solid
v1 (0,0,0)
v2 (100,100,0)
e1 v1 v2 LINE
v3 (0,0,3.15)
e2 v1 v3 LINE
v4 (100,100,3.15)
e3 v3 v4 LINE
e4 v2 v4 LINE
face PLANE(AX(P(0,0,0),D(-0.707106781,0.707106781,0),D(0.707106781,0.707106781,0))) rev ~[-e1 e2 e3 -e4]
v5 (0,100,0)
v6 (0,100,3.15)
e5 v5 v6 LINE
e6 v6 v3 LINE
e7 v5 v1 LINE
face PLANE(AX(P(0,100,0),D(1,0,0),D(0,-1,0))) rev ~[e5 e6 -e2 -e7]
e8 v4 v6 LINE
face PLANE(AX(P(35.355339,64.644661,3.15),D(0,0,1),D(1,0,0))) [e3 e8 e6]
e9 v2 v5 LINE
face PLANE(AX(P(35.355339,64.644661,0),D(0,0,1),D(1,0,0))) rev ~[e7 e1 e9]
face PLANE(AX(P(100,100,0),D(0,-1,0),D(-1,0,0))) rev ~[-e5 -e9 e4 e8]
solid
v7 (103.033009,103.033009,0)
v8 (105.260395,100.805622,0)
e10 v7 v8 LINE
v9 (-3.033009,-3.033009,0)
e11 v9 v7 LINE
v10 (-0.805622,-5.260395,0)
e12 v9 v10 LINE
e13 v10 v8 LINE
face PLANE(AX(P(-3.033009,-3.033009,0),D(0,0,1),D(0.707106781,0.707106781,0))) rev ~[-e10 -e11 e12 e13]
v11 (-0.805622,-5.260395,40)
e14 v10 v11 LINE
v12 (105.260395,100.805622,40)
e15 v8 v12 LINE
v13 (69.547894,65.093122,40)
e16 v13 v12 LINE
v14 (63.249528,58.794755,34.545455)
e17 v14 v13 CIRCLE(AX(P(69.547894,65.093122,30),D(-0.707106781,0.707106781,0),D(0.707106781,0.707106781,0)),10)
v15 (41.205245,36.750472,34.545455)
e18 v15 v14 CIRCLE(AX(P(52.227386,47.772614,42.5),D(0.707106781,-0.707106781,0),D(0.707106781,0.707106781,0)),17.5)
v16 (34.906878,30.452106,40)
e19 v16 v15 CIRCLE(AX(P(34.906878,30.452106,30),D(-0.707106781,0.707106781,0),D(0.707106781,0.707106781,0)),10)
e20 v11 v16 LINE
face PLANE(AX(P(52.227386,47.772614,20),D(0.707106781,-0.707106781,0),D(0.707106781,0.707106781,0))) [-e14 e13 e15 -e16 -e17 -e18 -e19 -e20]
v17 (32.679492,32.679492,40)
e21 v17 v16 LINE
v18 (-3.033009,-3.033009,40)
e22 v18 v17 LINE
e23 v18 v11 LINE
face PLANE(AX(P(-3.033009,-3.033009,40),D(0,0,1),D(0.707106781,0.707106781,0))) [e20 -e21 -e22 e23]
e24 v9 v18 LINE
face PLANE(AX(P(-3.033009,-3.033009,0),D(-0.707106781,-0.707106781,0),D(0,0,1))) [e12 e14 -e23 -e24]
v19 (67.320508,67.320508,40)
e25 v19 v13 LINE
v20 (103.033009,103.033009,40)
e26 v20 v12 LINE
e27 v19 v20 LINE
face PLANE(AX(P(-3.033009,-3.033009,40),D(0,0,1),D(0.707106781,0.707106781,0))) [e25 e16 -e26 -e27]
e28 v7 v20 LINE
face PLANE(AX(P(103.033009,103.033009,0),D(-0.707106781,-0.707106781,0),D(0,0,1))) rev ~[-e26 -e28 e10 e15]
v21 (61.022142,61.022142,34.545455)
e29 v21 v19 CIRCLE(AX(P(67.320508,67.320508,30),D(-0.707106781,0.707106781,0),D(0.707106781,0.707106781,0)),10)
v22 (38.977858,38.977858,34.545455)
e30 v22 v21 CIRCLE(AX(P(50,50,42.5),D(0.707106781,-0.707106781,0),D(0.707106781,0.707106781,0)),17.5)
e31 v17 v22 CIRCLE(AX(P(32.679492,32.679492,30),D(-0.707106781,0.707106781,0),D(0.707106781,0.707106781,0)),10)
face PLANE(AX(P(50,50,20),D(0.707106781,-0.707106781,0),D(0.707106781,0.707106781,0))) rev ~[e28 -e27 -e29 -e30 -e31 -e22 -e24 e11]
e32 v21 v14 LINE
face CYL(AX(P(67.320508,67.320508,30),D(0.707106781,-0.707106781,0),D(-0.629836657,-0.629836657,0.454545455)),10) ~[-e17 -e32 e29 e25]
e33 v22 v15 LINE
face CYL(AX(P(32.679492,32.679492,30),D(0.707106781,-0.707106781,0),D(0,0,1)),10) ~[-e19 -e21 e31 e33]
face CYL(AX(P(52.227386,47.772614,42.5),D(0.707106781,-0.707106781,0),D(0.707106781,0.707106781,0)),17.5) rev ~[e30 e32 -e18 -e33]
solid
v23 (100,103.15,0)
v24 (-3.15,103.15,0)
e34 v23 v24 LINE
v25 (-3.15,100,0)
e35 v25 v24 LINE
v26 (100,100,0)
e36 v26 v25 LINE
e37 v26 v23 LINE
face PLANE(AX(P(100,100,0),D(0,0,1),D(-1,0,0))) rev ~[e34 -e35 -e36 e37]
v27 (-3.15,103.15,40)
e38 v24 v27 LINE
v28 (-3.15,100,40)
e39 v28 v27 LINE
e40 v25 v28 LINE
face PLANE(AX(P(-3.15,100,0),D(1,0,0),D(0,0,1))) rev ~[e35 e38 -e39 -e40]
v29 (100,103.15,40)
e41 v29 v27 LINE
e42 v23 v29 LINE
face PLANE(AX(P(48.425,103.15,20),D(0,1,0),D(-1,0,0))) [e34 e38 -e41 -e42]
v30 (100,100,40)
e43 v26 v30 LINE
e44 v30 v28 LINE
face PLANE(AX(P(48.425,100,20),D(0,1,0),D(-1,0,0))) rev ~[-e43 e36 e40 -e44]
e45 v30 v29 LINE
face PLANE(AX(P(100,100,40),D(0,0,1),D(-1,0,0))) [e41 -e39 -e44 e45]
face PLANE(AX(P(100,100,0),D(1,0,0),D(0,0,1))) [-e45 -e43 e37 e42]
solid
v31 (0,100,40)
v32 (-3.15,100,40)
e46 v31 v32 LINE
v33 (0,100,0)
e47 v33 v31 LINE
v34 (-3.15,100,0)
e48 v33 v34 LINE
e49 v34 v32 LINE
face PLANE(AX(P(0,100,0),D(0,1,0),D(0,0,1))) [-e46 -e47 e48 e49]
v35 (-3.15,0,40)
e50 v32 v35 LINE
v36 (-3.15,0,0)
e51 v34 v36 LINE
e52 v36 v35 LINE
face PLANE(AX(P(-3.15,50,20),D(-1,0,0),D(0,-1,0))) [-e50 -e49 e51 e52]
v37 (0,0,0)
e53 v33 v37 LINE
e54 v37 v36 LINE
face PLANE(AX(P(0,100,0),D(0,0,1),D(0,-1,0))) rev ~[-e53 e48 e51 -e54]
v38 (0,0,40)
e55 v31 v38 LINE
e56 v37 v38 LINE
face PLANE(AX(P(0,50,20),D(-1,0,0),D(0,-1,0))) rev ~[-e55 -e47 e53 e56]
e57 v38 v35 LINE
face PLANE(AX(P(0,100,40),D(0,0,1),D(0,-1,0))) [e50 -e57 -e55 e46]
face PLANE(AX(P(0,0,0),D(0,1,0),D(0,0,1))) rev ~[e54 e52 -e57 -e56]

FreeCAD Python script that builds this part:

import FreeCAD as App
import Part
import Sketcher

V = App.Vector


def edges_at(feature, points):
    """Names of the edges that pass closest to the given points."""
    edges = feature.Shape.Edges
    near = lambda p: min(range(len(edges)), key=lambda i: edges[i].distToShape(Part.Vertex(*p))[0])
    return sorted({f"Edge{near(p) + 1}" for p in points})

doc = App.newDocument("Part")
body = doc.addObject("PartDesign::Body", "Body")

sketch1 = body.newObject("Sketcher::SketchObject", "Sketch")
sketch1.AttachmentSupport = (doc.getObject("XY_Plane"), [""])
sketch1.MapMode = "FlatFace"
sketch1.addGeometry(Part.LineSegment(V(0, 100, 0), V(0, 0, 0)), False)
sketch1.addGeometry(Part.LineSegment(V(0, 0, 0), V(100, 100, 0)), False)
sketch1.addGeometry(Part.LineSegment(V(100, 100, 0), V(0, 100, 0)), False)
sketch1.addConstraint(Sketcher.Constraint("Coincident", 0, 2, 1, 1))
sketch1.addConstraint(Sketcher.Constraint("Coincident", 1, 2, 2, 1))
sketch1.addConstraint(Sketcher.Constraint("Coincident", 2, 2, 0, 1))
sketch1.addConstraint(Sketcher.Constraint("Vertical", 0))
sketch1.addConstraint(Sketcher.Constraint("Horizontal", 2))
sketch1.addConstraint(Sketcher.Constraint("Coincident", 0, 2, -1, 1))
sketch1.addConstraint(Sketcher.Constraint("Equal", 2, 0))
sketch1.addConstraint(Sketcher.Constraint("DistanceX", 2, 2, 2, 1, 100.0))
pad1 = body.newObject("PartDesign::Pad", "Pad")
pad1.Profile = sketch1
pad1.Length = 3.15
body2 = doc.addObject("PartDesign::Body", "Body001")

sketch2 = body2.newObject("Sketcher::SketchObject", "Sketch001")
sketch2.AttachmentSupport = (doc.getObject("YZ_Plane001"), [""])
sketch2.MapMode = "FlatFace"
sketch2.addGeometry(Part.LineSegment(V(100, 40, 0), V(100, 0, 0)), False)
sketch2.addGeometry(Part.LineSegment(V(100, 0, 0), V(0, 0, 0)), False)
sketch2.addGeometry(Part.LineSegment(V(0, 0, 0), V(0, 40, 0)), False)
sketch2.addGeometry(Part.LineSegment(V(0, 40, 0), V(100, 40, 0)), False)
sketch2.addConstraint(Sketcher.Constraint("Coincident", 0, 2, 1, 1))
sketch2.addConstraint(Sketcher.Constraint("Coincident", 1, 2, 2, 1))
sketch2.addConstraint(Sketcher.Constraint("Coincident", 2, 2, 3, 1))
sketch2.addConstraint(Sketcher.Constraint("Coincident", 3, 2, 0, 1))
sketch2.addConstraint(Sketcher.Constraint("Vertical", 0))
sketch2.addConstraint(Sketcher.Constraint("Horizontal", 1))
sketch2.addConstraint(Sketcher.Constraint("Vertical", 2))
sketch2.addConstraint(Sketcher.Constraint("Horizontal", 3))
sketch2.addConstraint(Sketcher.Constraint("Coincident", 1, 2, -1, 1))
sketch2.addConstraint(Sketcher.Constraint("DistanceX", 1, 2, 1, 1, 100.0))
sketch2.addConstraint(Sketcher.Constraint("DistanceY", 0, 2, 0, 1, 40.0))
pad2 = body2.newObject("PartDesign::Pad", "Pad001")
pad2.Profile = sketch2
pad2.Length = 3.15
pad2.Reversed = True
body3 = doc.addObject("PartDesign::Body", "Body002")

sketch3 = body3.newObject("Sketcher::SketchObject", "Sketch002")
sketch3.AttachmentSupport = (doc.getObject("XZ_Plane002"), [""])
sketch3.MapMode = "FlatFace"
sketch3.AttachmentOffset = App.Placement(V(0, 0, -100), App.Rotation())
sketch3.addGeometry(Part.LineSegment(V(100, 40, 0), V(100, 0, 0)), False)
sketch3.addGeometry(Part.LineSegment(V(100, 0, 0), V(-3, 0, 0)), False)
sketch3.addGeometry(Part.LineSegment(V(-3, 0, 0), V(-3, 40, 0)), False)
sketch3.addGeometry(Part.LineSegment(V(-3, 40, 0), V(100, 40, 0)), False)
sketch3.addConstraint(Sketcher.Constraint("Coincident", 0, 2, 1, 1))
sketch3.addConstraint(Sketcher.Constraint("Coincident", 1, 2, 2, 1))
sketch3.addConstraint(Sketcher.Constraint("Coincident", 2, 2, 3, 1))
sketch3.addConstraint(Sketcher.Constraint("Coincident", 3, 2, 0, 1))
sketch3.addConstraint(Sketcher.Constraint("Vertical", 0))
sketch3.addConstraint(Sketcher.Constraint("Horizontal", 1))
sketch3.addConstraint(Sketcher.Constraint("Vertical", 2))
sketch3.addConstraint(Sketcher.Constraint("Horizontal", 3))
sketch3.addConstraint(Sketcher.Constraint("PointOnObject", 0, 2, -1))
sketch3.addConstraint(Sketcher.Constraint("DistanceY", 0, 2, 0, 1, 40.0))
sketch3.addConstraint(Sketcher.Constraint("DistanceX", -1, 1, 0, 2, 100.0))
sketch3.addConstraint(Sketcher.Constraint("DistanceX", 1, 2, 1, 1, 103.15))
pad3 = body3.newObject("PartDesign::Pad", "Pad002")
pad3.Profile = sketch3
pad3.Length = 3.15
pad3.Reversed = True
body4 = doc.addObject("PartDesign::Body", "Body003")

sketch4 = body4.newObject("Sketcher::SketchObject", "Sketch003")
sketch4.Placement = App.Placement(V(0, 0, 0), App.Rotation(V(0.707106781, 0.707106781, 0), V(0, 0, 0.999999999), V(0.707106781, -0.707106781, 0), "ZXY"))
sketch4.addGeometry(Part.LineSegment(V(-4, 40, 0), V(-4, 0, 0)), False)
sketch4.addGeometry(Part.LineSegment(V(-4, 0, 0), V(146, 0, 0)), False)
sketch4.addGeometry(Part.LineSegment(V(146, 0, 0), V(146, 40, 0)), False)
sketch4.addGeometry(Part.LineSegment(V(146, 40, 0), V(-4, 40, 0)), False)
sketch4.addConstraint(Sketcher.Constraint("Coincident", 0, 2, 1, 1))
sketch4.addConstraint(Sketcher.Constraint("Coincident", 1, 2, 2, 1))
sketch4.addConstraint(Sketcher.Constraint("Coincident", 2, 2, 3, 1))
sketch4.addConstraint(Sketcher.Constraint("Coincident", 3, 2, 0, 1))
sketch4.addConstraint(Sketcher.Constraint("Vertical", 0))
sketch4.addConstraint(Sketcher.Constraint("Horizontal", 1))
sketch4.addConstraint(Sketcher.Constraint("Vertical", 2))
sketch4.addConstraint(Sketcher.Constraint("Horizontal", 3))
sketch4.addConstraint(Sketcher.Constraint("PointOnObject", 0, 2, -1))
sketch4.addConstraint(Sketcher.Constraint("DistanceX", 1, 1, 1, 2, 150.0))
sketch4.addConstraint(Sketcher.Constraint("DistanceY", 0, 2, 0, 1, 40.0))
sketch4.addConstraint(Sketcher.Constraint("DistanceX", 0, 2, -1, 1, 4.289322))
pad4 = body4.newObject("PartDesign::Pad", "Pad003")
pad4.Profile = sketch4
pad4.Length = 3.15

sketch5 = body4.newObject("Sketcher::SketchObject", "Sketch004")
sketch5.Placement = App.Placement(V(2.227386, -2.227386, 0), App.Rotation(V(0.707106781, 0.707106781, 0), V(0, 0, 0.999999999), V(0.707106781, -0.707106781, 0), "ZXY"))
sketch5.addGeometry(Part.Circle(V(71, 42, 0), V(0, 0, 1), 18), False)
sketch5.addConstraint(Sketcher.Constraint("Diameter", 0, 35.0))
sketch5.addConstraint(Sketcher.Constraint("DistanceY", -1, 1, 0, 3, 42.5))
sketch5.addConstraint(Sketcher.Constraint("DistanceX", -1, 1, 0, 3, 70.710678))
pocket1 = body4.newObject("PartDesign::Pocket", "Pocket")
pocket1.Profile = sketch5
pocket1.Length = 25
doc.recompute()

fillet = body4.newObject("PartDesign::Fillet", "Fillet")
fillet.Base = (pocket1, edges_at(pocket1, [(63.361, 61.134, 40), (38.866, 36.639, 40)]))
fillet.Radius = 10

doc.recompute()
